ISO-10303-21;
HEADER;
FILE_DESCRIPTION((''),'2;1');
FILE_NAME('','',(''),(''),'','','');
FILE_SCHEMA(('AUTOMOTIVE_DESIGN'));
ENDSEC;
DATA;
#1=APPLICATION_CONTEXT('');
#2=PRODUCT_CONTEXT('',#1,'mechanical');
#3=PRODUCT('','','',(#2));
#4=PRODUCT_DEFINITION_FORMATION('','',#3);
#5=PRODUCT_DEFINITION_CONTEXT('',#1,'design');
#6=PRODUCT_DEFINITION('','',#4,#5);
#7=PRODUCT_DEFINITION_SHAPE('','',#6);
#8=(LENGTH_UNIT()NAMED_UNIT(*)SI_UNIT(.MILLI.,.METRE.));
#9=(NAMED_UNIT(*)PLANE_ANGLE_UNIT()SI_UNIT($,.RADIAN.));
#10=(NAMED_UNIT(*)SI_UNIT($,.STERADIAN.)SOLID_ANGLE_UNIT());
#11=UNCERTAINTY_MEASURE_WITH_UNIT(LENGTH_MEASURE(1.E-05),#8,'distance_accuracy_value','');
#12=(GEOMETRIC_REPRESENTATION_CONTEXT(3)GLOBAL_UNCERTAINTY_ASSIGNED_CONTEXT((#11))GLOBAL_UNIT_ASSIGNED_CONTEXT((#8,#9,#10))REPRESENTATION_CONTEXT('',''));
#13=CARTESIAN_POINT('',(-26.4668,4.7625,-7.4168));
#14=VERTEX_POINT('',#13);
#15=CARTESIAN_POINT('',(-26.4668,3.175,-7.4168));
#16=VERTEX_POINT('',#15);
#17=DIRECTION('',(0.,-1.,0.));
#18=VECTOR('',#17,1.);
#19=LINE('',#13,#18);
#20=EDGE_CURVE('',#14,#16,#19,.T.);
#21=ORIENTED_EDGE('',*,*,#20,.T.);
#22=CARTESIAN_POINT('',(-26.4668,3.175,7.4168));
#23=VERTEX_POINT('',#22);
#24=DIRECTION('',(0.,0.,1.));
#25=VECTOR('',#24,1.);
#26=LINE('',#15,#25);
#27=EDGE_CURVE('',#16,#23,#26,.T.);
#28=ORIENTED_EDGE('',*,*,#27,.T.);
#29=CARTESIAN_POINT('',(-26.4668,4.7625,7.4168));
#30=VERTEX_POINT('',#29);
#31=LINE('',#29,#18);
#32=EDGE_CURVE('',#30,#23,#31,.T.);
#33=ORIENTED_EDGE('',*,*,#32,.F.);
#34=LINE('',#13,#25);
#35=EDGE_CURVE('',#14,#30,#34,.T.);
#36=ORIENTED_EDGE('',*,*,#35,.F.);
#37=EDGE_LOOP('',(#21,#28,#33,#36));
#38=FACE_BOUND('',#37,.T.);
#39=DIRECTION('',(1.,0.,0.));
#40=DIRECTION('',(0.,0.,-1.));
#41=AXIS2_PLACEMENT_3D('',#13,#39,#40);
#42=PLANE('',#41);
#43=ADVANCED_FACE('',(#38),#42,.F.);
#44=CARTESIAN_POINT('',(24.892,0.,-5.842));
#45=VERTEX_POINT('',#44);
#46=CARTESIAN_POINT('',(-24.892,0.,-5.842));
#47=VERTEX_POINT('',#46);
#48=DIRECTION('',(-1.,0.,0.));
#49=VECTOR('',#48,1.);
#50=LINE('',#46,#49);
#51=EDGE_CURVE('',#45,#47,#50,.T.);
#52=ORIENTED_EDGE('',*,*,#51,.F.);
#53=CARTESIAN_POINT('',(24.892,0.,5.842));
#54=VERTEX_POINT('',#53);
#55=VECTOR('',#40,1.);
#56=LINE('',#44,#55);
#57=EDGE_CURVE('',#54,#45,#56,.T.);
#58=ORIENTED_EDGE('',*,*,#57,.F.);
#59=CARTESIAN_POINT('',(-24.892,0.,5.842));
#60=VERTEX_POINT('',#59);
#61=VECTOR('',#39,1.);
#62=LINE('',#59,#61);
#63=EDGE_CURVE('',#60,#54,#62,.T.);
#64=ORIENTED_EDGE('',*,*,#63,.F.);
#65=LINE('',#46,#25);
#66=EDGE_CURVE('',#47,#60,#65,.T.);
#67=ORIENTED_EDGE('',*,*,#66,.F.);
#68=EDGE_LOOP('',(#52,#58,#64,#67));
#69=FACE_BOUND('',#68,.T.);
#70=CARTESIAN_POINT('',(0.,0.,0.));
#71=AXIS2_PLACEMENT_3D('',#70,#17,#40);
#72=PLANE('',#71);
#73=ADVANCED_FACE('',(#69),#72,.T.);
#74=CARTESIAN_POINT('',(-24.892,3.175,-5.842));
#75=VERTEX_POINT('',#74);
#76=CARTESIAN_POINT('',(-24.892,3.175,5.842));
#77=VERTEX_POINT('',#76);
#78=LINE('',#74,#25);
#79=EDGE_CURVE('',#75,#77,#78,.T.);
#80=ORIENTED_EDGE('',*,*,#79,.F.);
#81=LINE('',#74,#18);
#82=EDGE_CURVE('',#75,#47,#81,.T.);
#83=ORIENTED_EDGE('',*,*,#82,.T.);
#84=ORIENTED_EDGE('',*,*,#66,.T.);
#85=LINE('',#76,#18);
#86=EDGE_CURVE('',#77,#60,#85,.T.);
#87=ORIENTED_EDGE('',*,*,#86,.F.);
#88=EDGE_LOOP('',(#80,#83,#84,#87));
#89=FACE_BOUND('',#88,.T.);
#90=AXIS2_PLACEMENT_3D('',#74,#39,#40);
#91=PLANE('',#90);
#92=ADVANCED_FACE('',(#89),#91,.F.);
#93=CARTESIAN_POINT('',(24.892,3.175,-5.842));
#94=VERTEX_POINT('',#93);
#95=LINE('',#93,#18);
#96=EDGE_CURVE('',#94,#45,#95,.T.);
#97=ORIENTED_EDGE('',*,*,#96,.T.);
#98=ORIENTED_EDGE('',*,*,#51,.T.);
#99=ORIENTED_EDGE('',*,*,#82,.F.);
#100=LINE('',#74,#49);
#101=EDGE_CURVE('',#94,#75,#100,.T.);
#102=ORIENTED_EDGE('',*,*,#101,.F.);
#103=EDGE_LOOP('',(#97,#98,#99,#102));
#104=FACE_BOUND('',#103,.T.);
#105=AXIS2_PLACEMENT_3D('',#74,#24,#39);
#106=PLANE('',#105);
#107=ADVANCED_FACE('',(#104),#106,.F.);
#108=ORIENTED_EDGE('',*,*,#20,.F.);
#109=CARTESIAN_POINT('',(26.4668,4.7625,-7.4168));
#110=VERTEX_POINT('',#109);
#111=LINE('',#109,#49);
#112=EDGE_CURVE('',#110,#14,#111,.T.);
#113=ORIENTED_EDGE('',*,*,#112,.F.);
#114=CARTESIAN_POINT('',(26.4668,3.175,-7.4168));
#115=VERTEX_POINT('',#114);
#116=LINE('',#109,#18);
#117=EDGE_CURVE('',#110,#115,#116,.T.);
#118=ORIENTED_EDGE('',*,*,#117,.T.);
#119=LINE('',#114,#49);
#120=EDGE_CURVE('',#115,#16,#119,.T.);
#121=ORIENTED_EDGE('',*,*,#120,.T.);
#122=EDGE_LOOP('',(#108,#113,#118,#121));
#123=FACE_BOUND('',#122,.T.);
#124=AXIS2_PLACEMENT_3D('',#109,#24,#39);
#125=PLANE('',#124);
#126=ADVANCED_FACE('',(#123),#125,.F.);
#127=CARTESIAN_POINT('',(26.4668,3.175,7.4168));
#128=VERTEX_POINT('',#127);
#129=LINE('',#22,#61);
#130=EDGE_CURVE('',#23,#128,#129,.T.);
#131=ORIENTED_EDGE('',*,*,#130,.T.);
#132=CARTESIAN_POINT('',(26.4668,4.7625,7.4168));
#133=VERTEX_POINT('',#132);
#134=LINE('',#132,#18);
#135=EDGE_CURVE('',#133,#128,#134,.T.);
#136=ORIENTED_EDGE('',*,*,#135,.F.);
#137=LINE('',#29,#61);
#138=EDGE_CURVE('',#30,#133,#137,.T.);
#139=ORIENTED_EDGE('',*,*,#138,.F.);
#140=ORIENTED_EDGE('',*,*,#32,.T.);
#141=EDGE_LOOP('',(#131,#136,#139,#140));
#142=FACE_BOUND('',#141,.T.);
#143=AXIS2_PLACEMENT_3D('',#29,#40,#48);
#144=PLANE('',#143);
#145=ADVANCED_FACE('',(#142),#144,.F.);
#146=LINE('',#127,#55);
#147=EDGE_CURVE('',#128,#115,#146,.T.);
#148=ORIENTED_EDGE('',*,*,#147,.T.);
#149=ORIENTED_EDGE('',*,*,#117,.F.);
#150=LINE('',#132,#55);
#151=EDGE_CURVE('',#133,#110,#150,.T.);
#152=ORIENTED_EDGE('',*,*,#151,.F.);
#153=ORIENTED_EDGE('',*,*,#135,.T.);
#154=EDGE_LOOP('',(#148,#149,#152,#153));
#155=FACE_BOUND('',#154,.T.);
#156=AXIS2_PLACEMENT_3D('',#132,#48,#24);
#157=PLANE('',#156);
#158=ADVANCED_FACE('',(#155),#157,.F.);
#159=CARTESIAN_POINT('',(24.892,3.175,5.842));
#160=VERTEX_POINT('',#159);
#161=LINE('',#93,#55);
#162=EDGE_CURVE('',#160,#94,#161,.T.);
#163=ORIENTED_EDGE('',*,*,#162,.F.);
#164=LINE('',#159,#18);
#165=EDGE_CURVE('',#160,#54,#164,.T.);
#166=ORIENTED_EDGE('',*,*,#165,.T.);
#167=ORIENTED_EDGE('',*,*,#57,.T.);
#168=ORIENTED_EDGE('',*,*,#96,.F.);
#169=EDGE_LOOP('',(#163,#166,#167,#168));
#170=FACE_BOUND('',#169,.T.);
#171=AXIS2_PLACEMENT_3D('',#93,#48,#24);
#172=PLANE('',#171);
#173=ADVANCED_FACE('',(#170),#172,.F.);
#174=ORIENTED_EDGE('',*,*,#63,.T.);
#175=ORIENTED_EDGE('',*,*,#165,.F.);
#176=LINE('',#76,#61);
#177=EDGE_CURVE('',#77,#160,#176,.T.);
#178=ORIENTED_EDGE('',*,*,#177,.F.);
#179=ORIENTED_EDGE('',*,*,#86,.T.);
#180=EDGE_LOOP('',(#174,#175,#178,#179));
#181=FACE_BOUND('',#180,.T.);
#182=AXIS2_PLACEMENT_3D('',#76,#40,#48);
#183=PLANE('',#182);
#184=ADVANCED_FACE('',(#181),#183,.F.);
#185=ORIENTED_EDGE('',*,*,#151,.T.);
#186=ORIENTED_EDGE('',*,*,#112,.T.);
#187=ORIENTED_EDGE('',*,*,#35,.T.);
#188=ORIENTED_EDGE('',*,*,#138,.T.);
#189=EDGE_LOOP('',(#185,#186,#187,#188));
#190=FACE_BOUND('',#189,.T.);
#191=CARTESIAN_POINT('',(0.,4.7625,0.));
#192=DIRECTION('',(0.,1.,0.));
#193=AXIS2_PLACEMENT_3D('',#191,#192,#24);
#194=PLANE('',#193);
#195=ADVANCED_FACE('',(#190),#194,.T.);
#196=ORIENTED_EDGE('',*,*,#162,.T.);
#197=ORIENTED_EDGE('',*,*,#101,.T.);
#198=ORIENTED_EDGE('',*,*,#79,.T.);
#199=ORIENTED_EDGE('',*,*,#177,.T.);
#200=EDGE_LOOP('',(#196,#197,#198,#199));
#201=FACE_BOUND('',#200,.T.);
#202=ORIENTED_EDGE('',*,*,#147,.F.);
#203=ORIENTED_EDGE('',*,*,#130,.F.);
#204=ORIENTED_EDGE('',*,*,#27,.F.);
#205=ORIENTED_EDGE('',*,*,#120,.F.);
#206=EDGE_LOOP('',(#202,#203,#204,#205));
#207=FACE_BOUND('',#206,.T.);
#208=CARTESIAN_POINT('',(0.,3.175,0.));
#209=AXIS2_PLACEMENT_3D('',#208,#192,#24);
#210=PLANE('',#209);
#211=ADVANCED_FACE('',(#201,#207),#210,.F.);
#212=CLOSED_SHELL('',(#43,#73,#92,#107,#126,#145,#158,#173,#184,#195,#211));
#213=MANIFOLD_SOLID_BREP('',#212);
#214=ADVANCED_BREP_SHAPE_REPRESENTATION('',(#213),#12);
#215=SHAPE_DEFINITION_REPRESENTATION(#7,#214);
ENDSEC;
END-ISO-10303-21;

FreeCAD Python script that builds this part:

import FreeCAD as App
import Part
import Sketcher

V = App.Vector
Q = App.Units.Quantity

doc = App.newDocument("Part")
params = doc.addObject("Spreadsheet::Sheet", "Params")
for row, (alias, value) in enumerate([
    ("sketch1_width", "1.96 in"),
    ("sketch1_height", "0.46 in"),
    ("pad1_length", "0.125 in"),
    ("sketch2_width", "2.084 in"),
    ("sketch2_height", "0.584 in"),
    ("pad2_length", "0.0625 in"),
], start=1):
    params.set(f"A{row}", alias)
    params.set(f"B{row}", "=" + value)
    params.setAlias(f"B{row}", alias)

body = doc.addObject("PartDesign::Body", "Body")

# Sketch on XZ plane
sketch1 = body.newObject("Sketcher::SketchObject", "Sketch")
sketch1.AttachmentSupport = (doc.getObject("XZ_Plane"), [""])
sketch1.MapMode = "FlatFace"
sketch1.addGeometry([
    Part.LineSegment(V(-24.892, -5.842, 0), V(-24.892, 5.842, 0)),
    Part.LineSegment(V(-24.892, 5.842, 0), V(24.892, 5.842, 0)),
    Part.LineSegment(V(24.892, 5.842, 0), V(24.892, -5.842, 0)),
    Part.LineSegment(V(24.892, -5.842, 0), V(-24.892, -5.842, 0)),
], False)
sketch1.addConstraint([
    Sketcher.Constraint("Coincident", 0, 2, 1, 1),
    Sketcher.Constraint("Coincident", 1, 2, 2, 1),
    Sketcher.Constraint("Coincident", 2, 2, 3, 1),
    Sketcher.Constraint("Coincident", 3, 2, 0, 1),
    Sketcher.Constraint("Vertical", 0),
    Sketcher.Constraint("Horizontal", 1),
    Sketcher.Constraint("Vertical", 2),
    Sketcher.Constraint("Horizontal", 3),
    Sketcher.Constraint("Symmetric", 0, 2, 2, 2, -1, 1),
    Sketcher.Constraint("DistanceX", 1, 1, 1, 2, Q("1.96 in")),
    Sketcher.Constraint("DistanceY", 0, 1, 0, 2, Q("0.46 in")),
])
sketch1.setExpression("Constraints[9]", "Params.sketch1_width")
sketch1.setExpression("Constraints[10]", "Params.sketch1_height")
pad1 = body.newObject("PartDesign::Pad", "Pad")
pad1.Profile = sketch1
pad1.setExpression("Length", "Params.pad1_length")
pad1.Reversed = True

# Sketch on XZ plane
sketch2 = body.newObject("Sketcher::SketchObject", "Sketch001")
sketch2.AttachmentSupport = (doc.getObject("XZ_Plane"), [""])
sketch2.MapMode = "FlatFace"
sketch2.AttachmentOffset = App.Placement(V(0, 0, -0.125 * 25.4), App.Rotation())
sketch2.addGeometry([
    Part.LineSegment(V(-26.4668, -7.4168, 0), V(-26.4668, 7.4168, 0)),
    Part.LineSegment(V(-26.4668, 7.4168, 0), V(26.4668, 7.4168, 0)),
    Part.LineSegment(V(26.4668, 7.4168, 0), V(26.4668, -7.4168, 0)),
    Part.LineSegment(V(26.4668, -7.4168, 0), V(-26.4668, -7.4168, 0)),
], False)
sketch2.addConstraint([
    Sketcher.Constraint("Coincident", 0, 2, 1, 1),
    Sketcher.Constraint("Coincident", 1, 2, 2, 1),
    Sketcher.Constraint("Coincident", 2, 2, 3, 1),
    Sketcher.Constraint("Coincident", 3, 2, 0, 1),
    Sketcher.Constraint("Vertical", 0),
    Sketcher.Constraint("Horizontal", 1),
    Sketcher.Constraint("Vertical", 2),
    Sketcher.Constraint("Horizontal", 3),
    Sketcher.Constraint("Symmetric", 0, 2, 2, 2, -1, 1),
    Sketcher.Constraint("DistanceX", 1, 1, 1, 2, Q("2.084 in")),
    Sketcher.Constraint("DistanceY", 0, 1, 0, 2, Q("0.584 in")),
])
sketch2.setExpression("Constraints[9]", "Params.sketch2_width")
sketch2.setExpression("Constraints[10]", "Params.sketch2_height")
pad2 = body.newObject("PartDesign::Pad", "Pad001")
pad2.Profile = sketch2
pad2.setExpression("Length", "Params.pad2_length")
pad2.Reversed = True

doc.recompute()
